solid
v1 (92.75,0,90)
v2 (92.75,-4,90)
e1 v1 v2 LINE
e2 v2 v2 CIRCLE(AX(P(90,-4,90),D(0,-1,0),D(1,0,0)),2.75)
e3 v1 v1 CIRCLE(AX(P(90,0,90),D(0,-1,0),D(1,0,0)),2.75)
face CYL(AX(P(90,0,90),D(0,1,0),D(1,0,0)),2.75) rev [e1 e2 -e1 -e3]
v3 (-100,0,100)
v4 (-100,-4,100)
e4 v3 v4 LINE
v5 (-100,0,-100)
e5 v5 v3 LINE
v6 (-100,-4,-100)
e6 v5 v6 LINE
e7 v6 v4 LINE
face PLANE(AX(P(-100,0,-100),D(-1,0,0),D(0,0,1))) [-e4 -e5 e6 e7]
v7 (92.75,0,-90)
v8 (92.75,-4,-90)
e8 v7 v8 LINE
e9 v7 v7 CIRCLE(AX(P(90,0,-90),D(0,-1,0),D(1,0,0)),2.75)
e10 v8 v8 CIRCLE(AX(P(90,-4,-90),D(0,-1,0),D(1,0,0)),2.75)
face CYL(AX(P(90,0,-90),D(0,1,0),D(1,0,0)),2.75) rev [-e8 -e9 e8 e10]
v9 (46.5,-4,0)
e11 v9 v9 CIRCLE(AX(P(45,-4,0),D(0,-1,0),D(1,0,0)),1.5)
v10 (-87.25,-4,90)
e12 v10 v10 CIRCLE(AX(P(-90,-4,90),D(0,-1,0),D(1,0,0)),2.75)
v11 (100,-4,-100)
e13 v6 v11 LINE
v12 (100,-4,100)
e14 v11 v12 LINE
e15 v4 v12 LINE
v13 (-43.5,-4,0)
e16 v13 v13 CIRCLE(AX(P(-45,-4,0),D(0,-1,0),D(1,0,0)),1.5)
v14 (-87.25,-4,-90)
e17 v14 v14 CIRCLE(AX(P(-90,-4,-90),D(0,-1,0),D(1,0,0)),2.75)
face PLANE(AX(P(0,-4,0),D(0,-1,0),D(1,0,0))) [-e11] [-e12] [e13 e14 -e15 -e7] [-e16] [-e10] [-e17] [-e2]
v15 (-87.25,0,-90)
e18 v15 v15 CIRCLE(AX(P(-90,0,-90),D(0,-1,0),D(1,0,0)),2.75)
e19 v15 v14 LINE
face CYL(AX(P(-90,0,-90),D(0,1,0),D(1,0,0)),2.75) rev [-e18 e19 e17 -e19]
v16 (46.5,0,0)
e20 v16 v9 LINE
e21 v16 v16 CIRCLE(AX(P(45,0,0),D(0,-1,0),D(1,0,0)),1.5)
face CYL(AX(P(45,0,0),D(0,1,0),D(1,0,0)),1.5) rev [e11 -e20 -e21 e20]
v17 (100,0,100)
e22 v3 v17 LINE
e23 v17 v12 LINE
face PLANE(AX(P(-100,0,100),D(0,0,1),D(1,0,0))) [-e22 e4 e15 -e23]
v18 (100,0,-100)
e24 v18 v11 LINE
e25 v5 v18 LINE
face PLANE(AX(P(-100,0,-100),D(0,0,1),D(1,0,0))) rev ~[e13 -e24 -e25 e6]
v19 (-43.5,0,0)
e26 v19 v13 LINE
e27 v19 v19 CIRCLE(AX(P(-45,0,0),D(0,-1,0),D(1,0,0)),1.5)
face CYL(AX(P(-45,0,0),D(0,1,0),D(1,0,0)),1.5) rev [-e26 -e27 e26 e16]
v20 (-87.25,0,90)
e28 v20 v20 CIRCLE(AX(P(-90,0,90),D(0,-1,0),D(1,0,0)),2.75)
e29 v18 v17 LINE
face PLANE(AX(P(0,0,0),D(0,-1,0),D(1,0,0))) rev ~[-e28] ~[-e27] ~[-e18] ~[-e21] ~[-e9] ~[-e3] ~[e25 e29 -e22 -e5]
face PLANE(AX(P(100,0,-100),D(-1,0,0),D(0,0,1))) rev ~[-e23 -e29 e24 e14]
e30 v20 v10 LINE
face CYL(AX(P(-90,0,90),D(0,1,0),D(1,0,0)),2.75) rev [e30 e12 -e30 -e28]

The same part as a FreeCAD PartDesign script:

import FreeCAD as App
import Part
import Sketcher
Q = App.Units.Quantity


def add_polygon(sketch, points):
    """Adds a closed chain of lines whose ends are joined by coincident constraints."""
    first, n = sketch.GeometryCount, len(points)
    for a, b in zip(points, points[1:] + points[:1]):
        sketch.addGeometry(Part.LineSegment(App.Vector(*a, 0), App.Vector(*b, 0)), False)
    for i in range(n):
        sketch.addConstraint(Sketcher.Constraint("Coincident", first + i, 2, first + (i + 1) % n, 1))

doc = App.newDocument("Part")
body = doc.addObject("PartDesign::Body", "Body")

# Sketch on XZ plane
sketch1 = doc.addObject("Sketcher::SketchObject", "Sketch")
body.addObject(sketch1)
sketch1.AttachmentSupport = (doc.XZ_Plane, [""])
sketch1.MapMode = "FlatFace"
add_polygon(sketch1, [(-100, 100), (-100, -100), (100, -100), (100, 100)])  # lines 0-3
sketch1.addGeometry(Part.Circle(App.Vector(-90, -90, 0), App.Vector(0, 0, 1), 2.8), False)  # 4
sketch1.addGeometry(Part.Circle(App.Vector(90, -90, 0), App.Vector(0, 0, 1), 2.8), False)  # 5
sketch1.addGeometry(Part.Circle(App.Vector(-45, 0, 0), App.Vector(0, 0, 1), 1.5), False)  # 6
sketch1.addGeometry(Part.Circle(App.Vector(-90, 90, 0), App.Vector(0, 0, 1), 2.8), False)  # 7
sketch1.addGeometry(Part.Circle(App.Vector(45, 0, 0), App.Vector(0, 0, 1), 1.5), False)  # 8
sketch1.addGeometry(Part.Circle(App.Vector(90, 90, 0), App.Vector(0, 0, 1), 2.8), False)  # 9
sketch1.addConstraint([
    Sketcher.Constraint("Vertical", 0),
    Sketcher.Constraint("Horizontal", 1),
    Sketcher.Constraint("Vertical", 2),
    Sketcher.Constraint("Horizontal", 3),
    Sketcher.Constraint("Equal", 4, 5),
    Sketcher.Constraint("Equal", 5, 7),
    Sketcher.Constraint("Equal", 6, 8),
    Sketcher.Constraint("Equal", 7, 9),
    Sketcher.Constraint("Symmetric", 5, 3, 7, 3, -1, 1),
    Sketcher.Constraint("Symmetric", 6, 3, 8, 3, -1, 1),
    Sketcher.Constraint("Symmetric", 4, 3, 9, 3, -1, 1),
    Sketcher.Constraint("Symmetric", 0, 2, 2, 2, -1, 1),
    Sketcher.Constraint("Symmetric", 4, 3, 5, 3, -2),
    Sketcher.Constraint("PointOnObject", 6, 3, -1),
    Sketcher.Constraint("Equal", 3, 0),
    Sketcher.Constraint("Diameter", 6, Q("3 mm")),
    Sketcher.Constraint("Diameter", 4, Q("5.5 mm")),
    Sketcher.Constraint("DistanceX", 1, 1, 1, 2, Q("200 mm")),
    Sketcher.Constraint("DistanceX", 4, 3, -1, 1, Q("90 mm")),
    Sketcher.Constraint("DistanceY", 4, 3, -1, 1, Q("90 mm")),
    Sketcher.Constraint("DistanceX", 6, 3, -1, 1, Q("45 mm")),
])
pad1 = doc.addObject("PartDesign::Pad", "Pad")
body.addObject(pad1)
pad1.Profile = sketch1
pad1.Length = 4

doc.recompute()
